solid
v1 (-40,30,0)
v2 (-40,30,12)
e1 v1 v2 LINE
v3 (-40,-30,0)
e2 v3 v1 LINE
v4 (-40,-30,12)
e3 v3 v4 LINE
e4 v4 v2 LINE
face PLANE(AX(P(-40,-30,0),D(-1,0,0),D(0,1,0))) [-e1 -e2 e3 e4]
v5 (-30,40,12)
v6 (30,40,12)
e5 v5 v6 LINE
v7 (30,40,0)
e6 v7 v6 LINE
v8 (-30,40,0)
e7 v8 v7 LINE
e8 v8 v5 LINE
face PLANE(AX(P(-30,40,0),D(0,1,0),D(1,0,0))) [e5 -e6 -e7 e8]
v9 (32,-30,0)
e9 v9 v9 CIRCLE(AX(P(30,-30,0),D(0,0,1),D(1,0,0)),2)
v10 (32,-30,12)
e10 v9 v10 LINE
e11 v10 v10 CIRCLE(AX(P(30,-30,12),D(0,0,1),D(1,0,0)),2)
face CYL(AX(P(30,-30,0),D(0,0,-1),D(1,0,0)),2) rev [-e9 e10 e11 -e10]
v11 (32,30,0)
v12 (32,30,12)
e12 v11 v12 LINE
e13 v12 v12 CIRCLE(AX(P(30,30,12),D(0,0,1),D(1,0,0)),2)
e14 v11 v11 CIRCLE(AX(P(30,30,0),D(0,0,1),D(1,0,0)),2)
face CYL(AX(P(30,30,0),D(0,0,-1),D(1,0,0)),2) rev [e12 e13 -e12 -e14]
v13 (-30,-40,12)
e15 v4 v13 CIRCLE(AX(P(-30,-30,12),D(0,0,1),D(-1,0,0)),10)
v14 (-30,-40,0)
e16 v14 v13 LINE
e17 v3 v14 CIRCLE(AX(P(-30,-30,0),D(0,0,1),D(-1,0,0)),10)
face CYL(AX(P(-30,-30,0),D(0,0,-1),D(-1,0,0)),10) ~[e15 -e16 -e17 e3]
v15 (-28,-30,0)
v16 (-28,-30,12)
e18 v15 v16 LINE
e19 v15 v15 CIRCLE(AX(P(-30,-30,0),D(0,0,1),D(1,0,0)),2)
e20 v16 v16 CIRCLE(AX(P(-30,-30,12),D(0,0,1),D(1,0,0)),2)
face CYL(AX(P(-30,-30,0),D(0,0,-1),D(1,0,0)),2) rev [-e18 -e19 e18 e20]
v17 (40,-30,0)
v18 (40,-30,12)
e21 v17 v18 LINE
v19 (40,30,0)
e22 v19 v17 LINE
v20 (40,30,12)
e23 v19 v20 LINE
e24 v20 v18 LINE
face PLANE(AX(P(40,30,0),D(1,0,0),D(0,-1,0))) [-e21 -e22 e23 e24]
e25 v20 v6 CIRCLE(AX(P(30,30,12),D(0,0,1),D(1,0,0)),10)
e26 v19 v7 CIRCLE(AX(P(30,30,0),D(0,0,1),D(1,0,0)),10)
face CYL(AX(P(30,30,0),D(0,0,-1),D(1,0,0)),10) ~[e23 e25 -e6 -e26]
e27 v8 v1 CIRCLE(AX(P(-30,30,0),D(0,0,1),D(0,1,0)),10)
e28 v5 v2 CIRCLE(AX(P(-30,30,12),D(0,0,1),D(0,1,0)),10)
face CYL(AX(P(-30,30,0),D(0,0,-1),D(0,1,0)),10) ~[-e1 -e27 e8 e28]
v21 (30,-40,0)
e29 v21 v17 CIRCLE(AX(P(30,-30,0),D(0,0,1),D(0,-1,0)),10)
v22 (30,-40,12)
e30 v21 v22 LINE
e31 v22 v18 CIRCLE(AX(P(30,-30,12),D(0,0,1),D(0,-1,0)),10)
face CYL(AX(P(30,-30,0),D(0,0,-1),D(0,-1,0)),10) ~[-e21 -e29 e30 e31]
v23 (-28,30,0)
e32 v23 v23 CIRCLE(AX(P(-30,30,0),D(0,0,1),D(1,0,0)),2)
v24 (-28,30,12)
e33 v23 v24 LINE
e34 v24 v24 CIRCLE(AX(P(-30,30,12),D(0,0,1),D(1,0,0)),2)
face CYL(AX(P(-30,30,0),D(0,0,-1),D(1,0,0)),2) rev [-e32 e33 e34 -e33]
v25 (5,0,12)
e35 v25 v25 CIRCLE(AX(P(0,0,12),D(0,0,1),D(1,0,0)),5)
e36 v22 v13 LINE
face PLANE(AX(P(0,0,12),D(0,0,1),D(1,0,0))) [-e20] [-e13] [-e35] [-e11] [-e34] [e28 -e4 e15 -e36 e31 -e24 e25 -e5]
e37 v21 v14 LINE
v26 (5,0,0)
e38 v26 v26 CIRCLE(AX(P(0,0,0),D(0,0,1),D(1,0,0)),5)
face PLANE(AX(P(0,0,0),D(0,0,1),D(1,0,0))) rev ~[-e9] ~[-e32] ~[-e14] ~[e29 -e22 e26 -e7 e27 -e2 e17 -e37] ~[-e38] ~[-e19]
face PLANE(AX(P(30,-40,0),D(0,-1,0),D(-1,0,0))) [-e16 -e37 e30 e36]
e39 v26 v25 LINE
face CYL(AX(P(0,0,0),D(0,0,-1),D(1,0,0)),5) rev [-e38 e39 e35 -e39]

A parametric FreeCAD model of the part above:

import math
import FreeCAD as App
import Part
import Sketcher
from FreeCAD import Vector

doc = App.newDocument("Part")
body = doc.addObject("PartDesign::Body", "Body")

# Sketch on XY plane
sketch1 = body.newObject("Sketcher::SketchObject", "Sketch")
sketch1.AttachmentSupport = (doc.getObject("XY_Plane"), [""])
sketch1.MapMode = "FlatFace"
sketch1.addGeometry([
    Part.LineSegment(Vector(-40, 30, 0), Vector(-40, -30, 0)),  # 0
    Part.ArcOfCircle(Part.Circle(Vector(-30, -30, 0), Vector(0, 0, 1), 10), math.radians(180), math.radians(270)),  # 1
    Part.LineSegment(Vector(-30, -40, 0), Vector(30, -40, 0)),  # 2
    Part.ArcOfCircle(Part.Circle(Vector(30, -30, 0), Vector(0, 0, 1), 10), math.radians(-90), math.radians(0)),  # 3
    Part.LineSegment(Vector(40, -30, 0), Vector(40, 30, 0)),  # 4
    Part.ArcOfCircle(Part.Circle(Vector(30, 30, 0), Vector(0, 0, 1), 10), math.radians(0), math.radians(90)),  # 5
    Part.LineSegment(Vector(30, 40, 0), Vector(-30, 40, 0)),  # 6
    Part.ArcOfCircle(Part.Circle(Vector(-30, 30, 0), Vector(0, 0, 1), 10), math.radians(90), math.radians(180)),  # 7
    Part.Circle(Vector(-30, -30, 0), Vector(0, 0, 1), 2),  # 8
    Part.Circle(Vector(30, -30, 0), Vector(0, 0, 1), 2),  # 9
    Part.Circle(Vector(-30, 30, 0), Vector(0, 0, 1), 2),  # 10
    Part.Circle(Vector(0, 0, 0), Vector(0, 0, 1), 5),  # 11
    Part.Circle(Vector(30, 30, 0), Vector(0, 0, 1), 2),  # 12
], False)
sketch1.addConstraint([
    Sketcher.Constraint("Tangent", 0, 2, 1, 1),
    Sketcher.Constraint("Tangent", 1, 2, 2, 1),
    Sketcher.Constraint("Tangent", 2, 2, 3, 1),
    Sketcher.Constraint("Tangent", 3, 2, 4, 1),
    Sketcher.Constraint("Tangent", 4, 2, 5, 1),
    Sketcher.Constraint("Tangent", 5, 2, 6, 1),
    Sketcher.Constraint("Tangent", 6, 2, 7, 1),
    Sketcher.Constraint("Tangent", 7, 2, 0, 1),
    Sketcher.Constraint("Vertical", 0),
    Sketcher.Constraint("Horizontal", 2),
    Sketcher.Constraint("Vertical", 4),
    Sketcher.Constraint("Horizontal", 6),
    Sketcher.Constraint("Coincident", 11, 3, -1, 1),
    Sketcher.Constraint("Coincident", 8, 3, 1, 3),
    Sketcher.Constraint("Coincident", 9, 3, 3, 3),
    Sketcher.Constraint("Coincident", 10, 3, 7, 3),
    Sketcher.Constraint("Coincident", 12, 3, 5, 3),
    Sketcher.Constraint("Equal", 1, 3),
    Sketcher.Constraint("Equal", 3, 5),
    Sketcher.Constraint("Equal", 5, 7),
    Sketcher.Constraint("Equal", 8, 9),
    Sketcher.Constraint("Equal", 9, 10),
    Sketcher.Constraint("Equal", 10, 12),
    Sketcher.Constraint("Symmetric", 1, 3, 5, 3, -1, 1),
    Sketcher.Constraint("Equal", 6, 0),
    Sketcher.Constraint("Diameter", 8, 4.0),
    Sketcher.Constraint("Diameter", 11, 10.0),
    Sketcher.Constraint("Radius", 1, 10.0),
    Sketcher.Constraint("DistanceX", 2, 1, 2, 2, 60.0),
])
pad1 = body.newObject("PartDesign::Pad", "Pad")
pad1.Profile = sketch1
pad1.Length = 12

doc.recompute()
